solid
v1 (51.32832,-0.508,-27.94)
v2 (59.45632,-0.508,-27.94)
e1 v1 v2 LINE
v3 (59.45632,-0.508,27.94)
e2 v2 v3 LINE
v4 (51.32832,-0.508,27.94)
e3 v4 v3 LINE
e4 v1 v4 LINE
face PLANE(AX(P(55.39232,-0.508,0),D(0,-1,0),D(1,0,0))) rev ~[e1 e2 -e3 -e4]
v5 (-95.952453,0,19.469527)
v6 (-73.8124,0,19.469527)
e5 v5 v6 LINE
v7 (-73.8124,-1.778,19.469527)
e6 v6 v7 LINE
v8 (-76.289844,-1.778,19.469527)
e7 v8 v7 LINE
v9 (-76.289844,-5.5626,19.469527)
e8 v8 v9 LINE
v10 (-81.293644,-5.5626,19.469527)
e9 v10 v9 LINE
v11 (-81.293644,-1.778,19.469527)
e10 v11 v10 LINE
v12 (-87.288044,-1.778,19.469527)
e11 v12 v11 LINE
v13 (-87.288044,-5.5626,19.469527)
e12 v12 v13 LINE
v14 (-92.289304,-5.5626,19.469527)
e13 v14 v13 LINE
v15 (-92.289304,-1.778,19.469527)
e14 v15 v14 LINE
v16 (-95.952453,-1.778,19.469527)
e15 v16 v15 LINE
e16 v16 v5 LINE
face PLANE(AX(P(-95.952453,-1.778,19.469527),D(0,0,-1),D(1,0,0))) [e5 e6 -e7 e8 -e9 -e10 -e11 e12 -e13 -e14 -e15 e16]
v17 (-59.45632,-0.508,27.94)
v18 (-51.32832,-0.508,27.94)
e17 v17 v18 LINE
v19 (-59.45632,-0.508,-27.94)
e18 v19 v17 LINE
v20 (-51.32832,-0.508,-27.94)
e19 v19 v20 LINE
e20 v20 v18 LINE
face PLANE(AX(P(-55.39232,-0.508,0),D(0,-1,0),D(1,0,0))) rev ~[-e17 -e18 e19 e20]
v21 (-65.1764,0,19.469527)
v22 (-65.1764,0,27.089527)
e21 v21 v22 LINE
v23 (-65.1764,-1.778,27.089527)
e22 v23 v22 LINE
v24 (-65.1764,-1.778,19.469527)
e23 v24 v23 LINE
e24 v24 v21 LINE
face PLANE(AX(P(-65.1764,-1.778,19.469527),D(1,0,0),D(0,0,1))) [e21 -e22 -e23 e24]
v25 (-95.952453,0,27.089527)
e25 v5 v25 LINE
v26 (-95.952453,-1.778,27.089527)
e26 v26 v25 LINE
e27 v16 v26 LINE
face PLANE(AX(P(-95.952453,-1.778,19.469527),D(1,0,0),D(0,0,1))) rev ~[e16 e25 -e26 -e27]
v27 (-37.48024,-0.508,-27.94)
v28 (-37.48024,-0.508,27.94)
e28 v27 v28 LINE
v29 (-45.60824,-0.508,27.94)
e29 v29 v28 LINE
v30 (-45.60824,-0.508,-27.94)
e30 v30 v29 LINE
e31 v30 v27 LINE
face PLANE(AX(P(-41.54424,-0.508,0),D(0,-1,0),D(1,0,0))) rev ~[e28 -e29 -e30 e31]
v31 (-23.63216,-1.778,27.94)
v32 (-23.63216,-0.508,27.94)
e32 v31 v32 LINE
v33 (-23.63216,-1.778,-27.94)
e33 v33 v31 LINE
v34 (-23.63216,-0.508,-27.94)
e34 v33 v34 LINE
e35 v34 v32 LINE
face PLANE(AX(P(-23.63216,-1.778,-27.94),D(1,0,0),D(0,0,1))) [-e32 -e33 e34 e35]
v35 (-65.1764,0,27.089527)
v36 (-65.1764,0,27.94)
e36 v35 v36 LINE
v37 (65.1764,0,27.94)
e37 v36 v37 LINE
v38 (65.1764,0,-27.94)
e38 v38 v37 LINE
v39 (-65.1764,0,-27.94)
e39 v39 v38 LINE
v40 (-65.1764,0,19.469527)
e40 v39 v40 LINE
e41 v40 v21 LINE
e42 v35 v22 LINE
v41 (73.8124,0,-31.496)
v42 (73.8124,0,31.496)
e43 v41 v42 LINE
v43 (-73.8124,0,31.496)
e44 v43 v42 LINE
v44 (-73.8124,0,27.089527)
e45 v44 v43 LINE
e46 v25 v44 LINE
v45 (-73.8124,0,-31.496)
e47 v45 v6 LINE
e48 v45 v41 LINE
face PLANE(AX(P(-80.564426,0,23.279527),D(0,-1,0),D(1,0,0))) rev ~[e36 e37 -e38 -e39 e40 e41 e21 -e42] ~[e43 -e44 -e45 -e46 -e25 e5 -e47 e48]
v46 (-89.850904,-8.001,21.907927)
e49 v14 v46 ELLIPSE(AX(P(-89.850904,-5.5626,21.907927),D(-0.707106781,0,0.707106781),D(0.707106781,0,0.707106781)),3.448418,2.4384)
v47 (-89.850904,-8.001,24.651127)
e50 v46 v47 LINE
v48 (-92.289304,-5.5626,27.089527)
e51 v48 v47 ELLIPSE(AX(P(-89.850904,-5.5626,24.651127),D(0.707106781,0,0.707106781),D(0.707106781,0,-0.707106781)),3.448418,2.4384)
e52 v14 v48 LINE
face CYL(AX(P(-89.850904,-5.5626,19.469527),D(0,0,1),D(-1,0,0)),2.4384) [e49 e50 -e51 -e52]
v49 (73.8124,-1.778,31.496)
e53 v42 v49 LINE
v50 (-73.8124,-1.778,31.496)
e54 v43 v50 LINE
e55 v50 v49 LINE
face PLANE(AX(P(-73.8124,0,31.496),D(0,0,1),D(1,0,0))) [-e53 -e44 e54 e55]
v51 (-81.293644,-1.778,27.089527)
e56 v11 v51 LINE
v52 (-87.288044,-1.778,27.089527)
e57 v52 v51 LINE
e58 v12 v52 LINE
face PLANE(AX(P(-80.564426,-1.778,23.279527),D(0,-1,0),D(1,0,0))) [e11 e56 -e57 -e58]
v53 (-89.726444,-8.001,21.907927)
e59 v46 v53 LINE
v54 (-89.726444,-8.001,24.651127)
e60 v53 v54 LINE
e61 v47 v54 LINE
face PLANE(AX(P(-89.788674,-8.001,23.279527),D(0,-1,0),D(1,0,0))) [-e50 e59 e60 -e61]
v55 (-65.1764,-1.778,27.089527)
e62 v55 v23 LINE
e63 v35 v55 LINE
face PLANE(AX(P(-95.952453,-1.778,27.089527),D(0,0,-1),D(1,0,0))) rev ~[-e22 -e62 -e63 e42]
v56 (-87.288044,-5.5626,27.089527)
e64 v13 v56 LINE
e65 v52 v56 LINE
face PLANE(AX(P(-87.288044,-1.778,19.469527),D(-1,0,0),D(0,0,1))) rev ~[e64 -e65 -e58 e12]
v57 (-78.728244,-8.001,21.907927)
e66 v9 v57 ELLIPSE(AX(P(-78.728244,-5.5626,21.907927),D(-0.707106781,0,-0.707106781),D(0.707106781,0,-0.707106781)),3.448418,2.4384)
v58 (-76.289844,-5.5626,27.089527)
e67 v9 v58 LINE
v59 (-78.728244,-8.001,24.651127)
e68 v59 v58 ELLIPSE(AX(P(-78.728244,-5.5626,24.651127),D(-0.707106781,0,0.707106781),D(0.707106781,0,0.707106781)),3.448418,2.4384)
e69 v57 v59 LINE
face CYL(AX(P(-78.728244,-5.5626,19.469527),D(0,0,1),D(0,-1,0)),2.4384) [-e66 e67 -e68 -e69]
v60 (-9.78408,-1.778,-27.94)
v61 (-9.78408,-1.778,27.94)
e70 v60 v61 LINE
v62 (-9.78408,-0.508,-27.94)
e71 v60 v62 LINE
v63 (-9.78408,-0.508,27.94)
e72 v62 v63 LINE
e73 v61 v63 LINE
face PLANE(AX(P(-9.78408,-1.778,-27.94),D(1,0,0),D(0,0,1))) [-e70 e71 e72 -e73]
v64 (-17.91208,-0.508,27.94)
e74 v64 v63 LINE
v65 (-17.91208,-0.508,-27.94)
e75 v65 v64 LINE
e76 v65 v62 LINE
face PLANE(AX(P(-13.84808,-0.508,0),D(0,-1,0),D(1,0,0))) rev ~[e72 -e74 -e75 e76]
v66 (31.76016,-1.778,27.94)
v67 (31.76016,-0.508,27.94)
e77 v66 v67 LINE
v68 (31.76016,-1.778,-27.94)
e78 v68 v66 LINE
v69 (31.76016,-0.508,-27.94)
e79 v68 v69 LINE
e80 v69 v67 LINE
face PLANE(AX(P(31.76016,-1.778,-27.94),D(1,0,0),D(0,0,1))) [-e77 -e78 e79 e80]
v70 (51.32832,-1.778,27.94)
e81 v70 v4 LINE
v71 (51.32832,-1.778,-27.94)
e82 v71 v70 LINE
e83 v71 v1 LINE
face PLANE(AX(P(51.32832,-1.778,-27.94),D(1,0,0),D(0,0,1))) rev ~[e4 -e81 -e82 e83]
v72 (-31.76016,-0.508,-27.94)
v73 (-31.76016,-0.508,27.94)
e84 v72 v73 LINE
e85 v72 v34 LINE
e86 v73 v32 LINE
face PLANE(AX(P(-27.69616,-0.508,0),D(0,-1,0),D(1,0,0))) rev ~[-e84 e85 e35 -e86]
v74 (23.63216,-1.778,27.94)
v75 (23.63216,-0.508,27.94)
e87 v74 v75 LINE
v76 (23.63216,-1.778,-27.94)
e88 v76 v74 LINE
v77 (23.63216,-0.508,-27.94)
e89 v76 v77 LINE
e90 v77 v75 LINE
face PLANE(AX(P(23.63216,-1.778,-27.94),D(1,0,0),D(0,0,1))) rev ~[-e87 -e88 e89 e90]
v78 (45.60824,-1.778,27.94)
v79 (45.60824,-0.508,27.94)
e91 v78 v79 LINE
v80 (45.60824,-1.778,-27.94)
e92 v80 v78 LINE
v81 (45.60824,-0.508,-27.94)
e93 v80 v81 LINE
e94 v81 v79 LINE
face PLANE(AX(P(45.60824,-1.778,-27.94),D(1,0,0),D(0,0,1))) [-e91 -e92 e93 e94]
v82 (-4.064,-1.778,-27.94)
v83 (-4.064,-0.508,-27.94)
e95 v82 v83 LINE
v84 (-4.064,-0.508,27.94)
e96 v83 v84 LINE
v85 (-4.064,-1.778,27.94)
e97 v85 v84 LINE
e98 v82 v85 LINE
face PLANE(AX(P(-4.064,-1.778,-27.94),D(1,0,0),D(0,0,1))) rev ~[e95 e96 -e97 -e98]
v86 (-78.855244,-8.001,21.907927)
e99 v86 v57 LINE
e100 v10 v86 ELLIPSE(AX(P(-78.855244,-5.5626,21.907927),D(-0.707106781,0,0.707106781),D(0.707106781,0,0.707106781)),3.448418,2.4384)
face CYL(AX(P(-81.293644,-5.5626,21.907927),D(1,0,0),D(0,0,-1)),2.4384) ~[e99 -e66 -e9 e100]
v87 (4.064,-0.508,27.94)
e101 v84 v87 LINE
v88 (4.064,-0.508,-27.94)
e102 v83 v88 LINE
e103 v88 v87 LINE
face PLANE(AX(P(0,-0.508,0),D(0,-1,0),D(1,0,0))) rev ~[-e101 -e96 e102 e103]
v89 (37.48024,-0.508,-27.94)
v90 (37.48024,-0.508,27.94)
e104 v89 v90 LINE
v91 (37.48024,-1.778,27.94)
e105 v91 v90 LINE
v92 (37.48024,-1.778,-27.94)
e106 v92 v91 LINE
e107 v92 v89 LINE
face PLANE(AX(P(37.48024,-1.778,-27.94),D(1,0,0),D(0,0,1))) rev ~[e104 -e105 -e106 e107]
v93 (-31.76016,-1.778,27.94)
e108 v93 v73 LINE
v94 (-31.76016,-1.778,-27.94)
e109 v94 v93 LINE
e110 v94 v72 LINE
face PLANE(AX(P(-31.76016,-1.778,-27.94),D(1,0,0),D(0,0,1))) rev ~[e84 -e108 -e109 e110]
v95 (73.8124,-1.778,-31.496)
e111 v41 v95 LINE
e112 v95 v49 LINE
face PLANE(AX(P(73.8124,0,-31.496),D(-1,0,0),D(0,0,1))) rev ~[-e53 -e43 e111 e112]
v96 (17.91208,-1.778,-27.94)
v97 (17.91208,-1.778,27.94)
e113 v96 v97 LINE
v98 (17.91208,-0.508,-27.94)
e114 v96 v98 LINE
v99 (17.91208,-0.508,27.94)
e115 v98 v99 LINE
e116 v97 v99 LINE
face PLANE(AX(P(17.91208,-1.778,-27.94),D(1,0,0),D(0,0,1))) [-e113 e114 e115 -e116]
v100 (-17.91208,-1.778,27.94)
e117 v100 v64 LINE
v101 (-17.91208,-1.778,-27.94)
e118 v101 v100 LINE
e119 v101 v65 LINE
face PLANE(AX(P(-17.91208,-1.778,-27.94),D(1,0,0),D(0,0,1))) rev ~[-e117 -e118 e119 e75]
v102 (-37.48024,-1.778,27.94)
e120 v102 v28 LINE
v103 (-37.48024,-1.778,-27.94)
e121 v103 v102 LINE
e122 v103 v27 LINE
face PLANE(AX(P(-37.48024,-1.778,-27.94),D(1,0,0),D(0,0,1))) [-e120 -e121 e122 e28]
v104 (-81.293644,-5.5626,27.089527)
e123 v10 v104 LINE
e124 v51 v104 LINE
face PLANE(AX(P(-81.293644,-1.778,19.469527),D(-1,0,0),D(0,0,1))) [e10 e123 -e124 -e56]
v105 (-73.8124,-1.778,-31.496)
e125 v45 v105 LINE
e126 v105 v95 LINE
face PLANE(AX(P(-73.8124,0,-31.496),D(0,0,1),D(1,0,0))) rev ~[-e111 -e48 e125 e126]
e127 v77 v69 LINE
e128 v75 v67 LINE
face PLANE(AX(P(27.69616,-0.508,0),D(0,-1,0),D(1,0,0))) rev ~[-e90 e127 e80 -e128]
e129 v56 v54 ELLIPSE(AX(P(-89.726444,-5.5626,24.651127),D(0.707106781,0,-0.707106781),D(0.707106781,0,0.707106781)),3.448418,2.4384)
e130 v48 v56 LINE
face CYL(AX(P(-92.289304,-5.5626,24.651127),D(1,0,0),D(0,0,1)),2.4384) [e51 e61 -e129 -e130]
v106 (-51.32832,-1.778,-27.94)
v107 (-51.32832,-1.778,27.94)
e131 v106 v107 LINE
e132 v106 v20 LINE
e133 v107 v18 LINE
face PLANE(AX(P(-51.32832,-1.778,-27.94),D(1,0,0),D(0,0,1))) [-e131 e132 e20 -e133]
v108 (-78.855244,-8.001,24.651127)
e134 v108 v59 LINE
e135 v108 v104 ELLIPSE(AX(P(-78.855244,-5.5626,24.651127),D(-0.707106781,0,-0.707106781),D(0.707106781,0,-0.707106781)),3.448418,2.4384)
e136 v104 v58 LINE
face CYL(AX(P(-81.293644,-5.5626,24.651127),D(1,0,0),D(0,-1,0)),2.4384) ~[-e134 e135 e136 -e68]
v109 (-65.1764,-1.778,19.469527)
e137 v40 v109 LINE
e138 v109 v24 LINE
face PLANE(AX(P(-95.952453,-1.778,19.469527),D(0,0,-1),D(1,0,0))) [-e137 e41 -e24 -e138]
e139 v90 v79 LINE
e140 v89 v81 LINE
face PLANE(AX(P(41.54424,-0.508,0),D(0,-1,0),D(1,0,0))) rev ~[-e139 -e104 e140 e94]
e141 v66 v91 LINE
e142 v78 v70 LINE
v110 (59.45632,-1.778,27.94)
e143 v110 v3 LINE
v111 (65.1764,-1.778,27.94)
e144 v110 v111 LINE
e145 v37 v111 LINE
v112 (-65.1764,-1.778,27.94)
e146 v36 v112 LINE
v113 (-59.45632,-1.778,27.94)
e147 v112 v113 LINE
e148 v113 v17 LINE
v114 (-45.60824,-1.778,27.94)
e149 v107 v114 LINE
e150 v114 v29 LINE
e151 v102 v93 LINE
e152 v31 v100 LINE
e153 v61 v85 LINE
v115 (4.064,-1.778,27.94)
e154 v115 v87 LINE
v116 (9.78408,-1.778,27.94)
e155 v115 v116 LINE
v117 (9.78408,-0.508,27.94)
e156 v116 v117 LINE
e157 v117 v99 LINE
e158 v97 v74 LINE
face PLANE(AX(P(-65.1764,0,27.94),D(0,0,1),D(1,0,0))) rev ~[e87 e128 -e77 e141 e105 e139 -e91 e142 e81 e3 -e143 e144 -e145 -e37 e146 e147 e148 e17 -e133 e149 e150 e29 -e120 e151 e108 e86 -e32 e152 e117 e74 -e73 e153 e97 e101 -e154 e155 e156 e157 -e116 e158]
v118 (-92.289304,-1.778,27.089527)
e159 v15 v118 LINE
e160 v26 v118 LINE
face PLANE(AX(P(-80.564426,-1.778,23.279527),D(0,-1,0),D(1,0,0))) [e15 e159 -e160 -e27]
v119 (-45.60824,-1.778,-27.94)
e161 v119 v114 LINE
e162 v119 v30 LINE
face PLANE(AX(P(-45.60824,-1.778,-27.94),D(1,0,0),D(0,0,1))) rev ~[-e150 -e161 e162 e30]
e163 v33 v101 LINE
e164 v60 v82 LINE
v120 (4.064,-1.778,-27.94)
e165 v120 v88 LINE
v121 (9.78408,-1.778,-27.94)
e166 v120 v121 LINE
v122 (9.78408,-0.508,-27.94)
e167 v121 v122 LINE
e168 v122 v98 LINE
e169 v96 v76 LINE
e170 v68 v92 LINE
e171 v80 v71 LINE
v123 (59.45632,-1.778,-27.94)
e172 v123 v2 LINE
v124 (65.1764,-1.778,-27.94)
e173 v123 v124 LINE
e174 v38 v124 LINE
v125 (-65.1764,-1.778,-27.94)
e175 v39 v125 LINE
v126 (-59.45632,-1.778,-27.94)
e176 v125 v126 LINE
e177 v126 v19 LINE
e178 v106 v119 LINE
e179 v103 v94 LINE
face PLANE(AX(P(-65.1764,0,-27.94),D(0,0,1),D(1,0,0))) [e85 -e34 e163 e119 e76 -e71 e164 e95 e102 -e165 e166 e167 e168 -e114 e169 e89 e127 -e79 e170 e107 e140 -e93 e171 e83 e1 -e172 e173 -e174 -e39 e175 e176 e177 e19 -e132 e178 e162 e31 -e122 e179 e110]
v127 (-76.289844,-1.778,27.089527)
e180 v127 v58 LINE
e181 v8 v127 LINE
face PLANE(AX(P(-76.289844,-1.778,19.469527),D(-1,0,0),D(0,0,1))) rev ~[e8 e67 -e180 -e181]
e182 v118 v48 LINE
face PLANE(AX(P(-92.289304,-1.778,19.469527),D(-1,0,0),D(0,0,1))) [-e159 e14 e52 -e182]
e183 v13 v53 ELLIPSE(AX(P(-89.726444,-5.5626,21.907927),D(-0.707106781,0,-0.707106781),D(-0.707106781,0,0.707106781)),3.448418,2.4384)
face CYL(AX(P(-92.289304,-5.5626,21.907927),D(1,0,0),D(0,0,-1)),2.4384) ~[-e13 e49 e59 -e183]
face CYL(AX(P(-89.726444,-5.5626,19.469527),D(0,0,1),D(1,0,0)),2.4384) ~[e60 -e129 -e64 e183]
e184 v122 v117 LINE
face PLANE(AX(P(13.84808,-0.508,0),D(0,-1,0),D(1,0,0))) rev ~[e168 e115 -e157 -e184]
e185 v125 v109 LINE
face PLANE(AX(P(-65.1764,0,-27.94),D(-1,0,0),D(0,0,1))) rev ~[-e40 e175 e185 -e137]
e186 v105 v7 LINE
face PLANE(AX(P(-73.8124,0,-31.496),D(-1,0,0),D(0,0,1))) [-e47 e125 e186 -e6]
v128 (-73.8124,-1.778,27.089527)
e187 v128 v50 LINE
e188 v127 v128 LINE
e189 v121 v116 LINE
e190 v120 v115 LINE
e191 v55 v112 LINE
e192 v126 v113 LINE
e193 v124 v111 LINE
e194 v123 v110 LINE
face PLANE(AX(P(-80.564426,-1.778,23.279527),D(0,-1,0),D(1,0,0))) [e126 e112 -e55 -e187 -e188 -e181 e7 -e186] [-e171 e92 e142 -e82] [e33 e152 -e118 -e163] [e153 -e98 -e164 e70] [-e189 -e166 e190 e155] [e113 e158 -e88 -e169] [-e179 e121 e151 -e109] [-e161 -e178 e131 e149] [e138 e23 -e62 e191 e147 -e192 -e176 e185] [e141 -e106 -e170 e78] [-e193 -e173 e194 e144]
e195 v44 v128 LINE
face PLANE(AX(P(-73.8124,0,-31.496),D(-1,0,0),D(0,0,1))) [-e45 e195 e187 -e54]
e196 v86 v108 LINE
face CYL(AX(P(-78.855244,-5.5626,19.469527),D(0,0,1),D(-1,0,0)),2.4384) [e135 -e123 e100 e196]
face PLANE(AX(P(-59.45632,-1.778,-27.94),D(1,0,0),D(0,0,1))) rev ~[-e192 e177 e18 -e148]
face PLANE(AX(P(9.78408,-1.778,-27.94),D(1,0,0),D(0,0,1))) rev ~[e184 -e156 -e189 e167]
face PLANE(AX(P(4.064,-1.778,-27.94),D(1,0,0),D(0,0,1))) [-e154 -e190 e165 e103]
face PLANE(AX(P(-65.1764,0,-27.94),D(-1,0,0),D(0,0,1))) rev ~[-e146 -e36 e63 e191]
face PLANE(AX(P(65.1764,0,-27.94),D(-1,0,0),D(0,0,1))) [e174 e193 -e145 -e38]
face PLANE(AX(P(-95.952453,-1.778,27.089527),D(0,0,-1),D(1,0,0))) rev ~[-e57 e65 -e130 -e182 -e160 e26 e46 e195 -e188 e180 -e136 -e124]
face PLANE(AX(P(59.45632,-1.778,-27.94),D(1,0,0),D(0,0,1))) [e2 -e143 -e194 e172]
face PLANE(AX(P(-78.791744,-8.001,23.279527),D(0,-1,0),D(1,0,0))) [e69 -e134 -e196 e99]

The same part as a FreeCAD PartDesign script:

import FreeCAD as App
import Part
import Sketcher
Q = App.Units.Quantity


def edges_at(feature, points):
    """Names of the edges that pass closest to the given points."""
    edges = feature.Shape.Edges
    near = lambda p: min(range(len(edges)), key=lambda i: edges[i].distToShape(Part.Vertex(*p))[0])
    return sorted({f"Edge{near(p) + 1}" for p in points})


def add_polygon(sketch, points):
    """Adds a closed chain of lines whose ends are joined by coincident constraints."""
    first, n = sketch.GeometryCount, len(points)
    for a, b in zip(points, points[1:] + points[:1]):
        sketch.addGeometry(Part.LineSegment(App.Vector(*a, 0), App.Vector(*b, 0)), False)
    for i in range(n):
        sketch.addConstraint(Sketcher.Constraint("Coincident", first + i, 2, first + (i + 1) % n, 1))

doc = App.newDocument("Part")
body = doc.addObject("PartDesign::Body", "Body")

# Sketch on XZ plane
sketch1 = body.newObject("Sketcher::SketchObject", "Sketch")
sketch1.AttachmentSupport = (doc.getObject("XZ_Plane"), [""])
sketch1.MapMode = "FlatFace"
add_polygon(sketch1, [(-74, 31), (-74, -31), (74, -31), (74, 31)])  # lines 0-3
add_polygon(sketch1, [(65, -28), (-65, -28), (-65, 28), (65, 28)])  # lines 4-7
sketch1.addConstraint([
    Sketcher.Constraint("Vertical", 0),
    Sketcher.Constraint("Horizontal", 1),
    Sketcher.Constraint("Vertical", 2),
    Sketcher.Constraint("Horizontal", 3),
    Sketcher.Constraint("Horizontal", 4),
    Sketcher.Constraint("Vertical", 5),
    Sketcher.Constraint("Horizontal", 6),
    Sketcher.Constraint("Vertical", 7),
    Sketcher.Constraint("Symmetric", 0, 2, 2, 2, -1, 1),
    Sketcher.Constraint("Symmetric", 4, 2, 6, 2, -1, 1),
    Sketcher.Constraint("DistanceY", 5, 1, 5, 2, Q("2.2 in")),
    Sketcher.Constraint("DistanceY", 0, 2, 0, 1, Q("2.48 in")),
    Sketcher.Constraint("DistanceX", 1, 1, 1, 2, Q("5.812 in")),
    Sketcher.Constraint("DistanceX", 4, 2, 4, 1, Q("5.132 in")),
])
pad1 = body.newObject("PartDesign::Pad", "Pad")
pad1.Profile = sketch1
pad1.Length = Q("0.07 in")

# Sketch on XZ plane
sketch2 = body.newObject("Sketcher::SketchObject", "Sketch001")
sketch2.AttachmentSupport = (doc.getObject("XZ_Plane"), [""])
sketch2.MapMode = "FlatFace"
sketch2.AttachmentOffset = App.Placement(App.Vector(0, 0, 0.07 * 25.4), App.Rotation())
add_polygon(sketch2, [(-59, 28), (-59, -28), (-51, -28), (-51, 28)])  # lines 0-3
add_polygon(sketch2, [(-46, 28), (-46, -28), (-37, -28), (-37, 28)])  # lines 4-7
add_polygon(sketch2, [(-32, 28), (-32, -28), (-24, -28), (-24, 28)])  # lines 8-11
add_polygon(sketch2, [(-18, 28), (-18, -28), (-10, -28), (-10, 28)])  # lines 12-15
add_polygon(sketch2, [(-4, 28), (-4, -28), (4, -28), (4, 28)])  # lines 16-19
add_polygon(sketch2, [(10, 28), (10, -28), (18, -28), (18, 28)])  # lines 20-23
add_polygon(sketch2, [(24, 28), (24, -28), (32, -28), (32, 28)])  # lines 24-27
add_polygon(sketch2, [(37, 28), (37, -28), (46, -28), (46, 28)])  # lines 28-31
add_polygon(sketch2, [(51, 28), (51, -28), (59, -28), (59, 28)])  # lines 32-35
sketch2.addConstraint([
    Sketcher.Constraint("Vertical", 0),
    Sketcher.Constraint("Horizontal", 1),
    Sketcher.Constraint("Vertical", 2),
    Sketcher.Constraint("Horizontal", 3),
    Sketcher.Constraint("Vertical", 4),
    Sketcher.Constraint("Horizontal", 5),
    Sketcher.Constraint("Vertical", 6),
    Sketcher.Constraint("Horizontal", 7),
    Sketcher.Constraint("Vertical", 8),
    Sketcher.Constraint("Horizontal", 9),
    Sketcher.Constraint("Vertical", 10),
    Sketcher.Constraint("Horizontal", 11),
    Sketcher.Constraint("Vertical", 12),
    Sketcher.Constraint("Horizontal", 13),
    Sketcher.Constraint("Vertical", 14),
    Sketcher.Constraint("Horizontal", 15),
    Sketcher.Constraint("Vertical", 16),
    Sketcher.Constraint("Horizontal", 17),
    Sketcher.Constraint("Vertical", 18),
    Sketcher.Constraint("Horizontal", 19),
    Sketcher.Constraint("Vertical", 20),
    Sketcher.Constraint("Horizontal", 21),
    Sketcher.Constraint("Vertical", 22),
    Sketcher.Constraint("Horizontal", 23),
    Sketcher.Constraint("Vertical", 24),
    Sketcher.Constraint("Horizontal", 25),
    Sketcher.Constraint("Vertical", 26),
    Sketcher.Constraint("Horizontal", 27),
    Sketcher.Constraint("Vertical", 28),
    Sketcher.Constraint("Horizontal", 29),
    Sketcher.Constraint("Vertical", 30),
    Sketcher.Constraint("Horizontal", 31),
    Sketcher.Constraint("Vertical", 32),
    Sketcher.Constraint("Horizontal", 33),
    Sketcher.Constraint("Vertical", 34),
    Sketcher.Constraint("Horizontal", 35),
    Sketcher.Constraint("Symmetric", 16, 2, 18, 2, -1, 1),
    Sketcher.Constraint("Symmetric", 14, 2, 20, 2, -1, 1),
    Sketcher.Constraint("Symmetric", 12, 2, 22, 2, -1, 1),
    Sketcher.Constraint("Symmetric", 10, 2, 24, 2, -1, 1),
    Sketcher.Constraint("Symmetric", 8, 2, 26, 2, -1, 1),
    Sketcher.Constraint("Symmetric", 6, 2, 28, 2, -1, 1),
    Sketcher.Constraint("Symmetric", 4, 2, 30, 2, -1, 1),
    Sketcher.Constraint("Symmetric", 2, 2, 32, 2, -1, 1),
    Sketcher.Constraint("Symmetric", 0, 2, 34, 2, -1, 1),
    Sketcher.Constraint("Horizontal", 1, 2, 4, 2),
    Sketcher.Constraint("Horizontal", 3, 2, 6, 2),
    Sketcher.Constraint("Horizontal", 5, 2, 8, 2),
    Sketcher.Constraint("Horizontal", 7, 2, 10, 2),
    Sketcher.Constraint("Horizontal", 9, 2, 12, 2),
    Sketcher.Constraint("Horizontal", 11, 2, 14, 2),
    Sketcher.Constraint("Horizontal", 13, 2, 16, 2),
    Sketcher.Constraint("Horizontal", 15, 2, 18, 2),
    Sketcher.Constraint("Equal", 3, 5),
    Sketcher.Constraint("Equal", 7, 9),
    Sketcher.Constraint("Equal", 11, 13),
    Sketcher.Constraint("Equal", 15, 17),
    Sketcher.Constraint("DistanceY", 0, 2, 0, 1, Q("2.2 in")),
    Sketcher.Constraint("DistanceX", 1, 1, 1, 2, Q("0.32 in")),
    Sketcher.Constraint("DistanceX", 0, 2, -1, 1, Q("2.3408 in")),
    Sketcher.Constraint("DistanceX", 4, 2, -1, 1, Q("1.7956 in")),
    Sketcher.Constraint("DistanceX", 8, 2, -1, 1, Q("1.2504 in")),
    Sketcher.Constraint("DistanceX", 12, 2, -1, 1, Q("0.7052 in")),
])
pad2 = body.newObject("PartDesign::Pad", "Pad001")
pad2.Profile = sketch2
pad2.Length = Q("0.05 in")
pad2.Reversed = True

# Sketch on XZ plane
sketch3 = body.newObject("Sketcher::SketchObject", "Sketch002")
sketch3.AttachmentSupport = (doc.getObject("XZ_Plane"), [""])
sketch3.MapMode = "FlatFace"
sketch3.AttachmentOffset = App.Placement(App.Vector(0, 0, 0.07 * 25.4), App.Rotation())
add_polygon(sketch3, [(-96, 27), (-96, 19), (-65, 19), (-65, 27)])  # lines 0-3
sketch3.addConstraint([
    Sketcher.Constraint("Vertical", 0),
    Sketcher.Constraint("Horizontal", 1),
    Sketcher.Constraint("Vertical", 2),
    Sketcher.Constraint("Horizontal", 3),
    Sketcher.Constraint("DistanceY", 0, 2, 0, 1, Q("0.3 in")),
    Sketcher.Constraint("DistanceX", 1, 2, -1, 1, Q("2.566 in")),
    Sketcher.Constraint("DistanceX", 1, 1, 1, 2, 30.776053),
    Sketcher.Constraint("DistanceY", -1, 1, 0, 2, 19.469527),
])
pad3 = body.newObject("PartDesign::Pad", "Pad002")
pad3.Profile = sketch3
pad3.Length = Q("0.07 in")
pad3.Reversed = True

# Sketch on XZ plane
sketch4 = body.newObject("Sketcher::SketchObject", "Sketch003")
sketch4.AttachmentSupport = (doc.getObject("XZ_Plane"), [""])
sketch4.MapMode = "FlatFace"
sketch4.AttachmentOffset = App.Placement(App.Vector(0, 0, 0.07 * 25.4), App.Rotation())
add_polygon(sketch4, [(-92, 27), (-92, 19), (-87, 19), (-87, 27)])  # lines 0-3
add_polygon(sketch4, [(-81, 27), (-81, 19), (-76, 19), (-76, 27)])  # lines 4-7
sketch4.addConstraint([
    Sketcher.Constraint("Vertical", 0),
    Sketcher.Constraint("Horizontal", 1),
    Sketcher.Constraint("Vertical", 2),
    Sketcher.Constraint("Horizontal", 3),
    Sketcher.Constraint("Vertical", 4),
    Sketcher.Constraint("Horizontal", 5),
    Sketcher.Constraint("Vertical", 6),
    Sketcher.Constraint("Horizontal", 7),
    Sketcher.Constraint("Horizontal", 1, 2, 4, 2),
    Sketcher.Constraint("Horizontal", 3, 2, 6, 2),
    Sketcher.Constraint("DistanceY", 0, 2, 0, 1, Q("0.3 in")),
    Sketcher.Constraint("DistanceX", 5, 1, 5, 2, Q("0.197 in")),
    Sketcher.Constraint("DistanceX", 1, 1, 1, 2, Q("0.1969 in")),
    Sketcher.Constraint("DistanceX", 1, 2, 4, 2, Q("0.236 in")),
    Sketcher.Constraint("DistanceX", 0, 2, -1, 1, 92.289304),
    Sketcher.Constraint("DistanceY", -1, 1, 0, 2, 19.469527),
])
pad4 = body.newObject("PartDesign::Pad", "Pad003")
pad4.Profile = sketch4
pad4.Length = Q("0.245 in")
doc.recompute()

fillet = body.newObject("PartDesign::Fillet", "Fillet")
fillet.Base = (pad4, edges_at(pad4, [
    (-87.288, -8.001, 23.28),
    (-89.789, -8.001, 27.09),
    (-92.289, -8.001, 23.28),
    (-89.789, -8.001, 19.47),
]))
fillet.Radius = Q("0.096 in")
doc.recompute()

fillet2 = body.newObject("PartDesign::Fillet", "Fillet001")
fillet2.Base = (fillet, edges_at(fillet, [
    (-78.792, -8.001, 27.09),
    (-81.294, -8.001, 23.28),
    (-78.792, -8.001, 19.47),
    (-76.29, -8.001, 23.28),
]))
fillet2.Radius = Q("0.096 in")

doc.recompute()
